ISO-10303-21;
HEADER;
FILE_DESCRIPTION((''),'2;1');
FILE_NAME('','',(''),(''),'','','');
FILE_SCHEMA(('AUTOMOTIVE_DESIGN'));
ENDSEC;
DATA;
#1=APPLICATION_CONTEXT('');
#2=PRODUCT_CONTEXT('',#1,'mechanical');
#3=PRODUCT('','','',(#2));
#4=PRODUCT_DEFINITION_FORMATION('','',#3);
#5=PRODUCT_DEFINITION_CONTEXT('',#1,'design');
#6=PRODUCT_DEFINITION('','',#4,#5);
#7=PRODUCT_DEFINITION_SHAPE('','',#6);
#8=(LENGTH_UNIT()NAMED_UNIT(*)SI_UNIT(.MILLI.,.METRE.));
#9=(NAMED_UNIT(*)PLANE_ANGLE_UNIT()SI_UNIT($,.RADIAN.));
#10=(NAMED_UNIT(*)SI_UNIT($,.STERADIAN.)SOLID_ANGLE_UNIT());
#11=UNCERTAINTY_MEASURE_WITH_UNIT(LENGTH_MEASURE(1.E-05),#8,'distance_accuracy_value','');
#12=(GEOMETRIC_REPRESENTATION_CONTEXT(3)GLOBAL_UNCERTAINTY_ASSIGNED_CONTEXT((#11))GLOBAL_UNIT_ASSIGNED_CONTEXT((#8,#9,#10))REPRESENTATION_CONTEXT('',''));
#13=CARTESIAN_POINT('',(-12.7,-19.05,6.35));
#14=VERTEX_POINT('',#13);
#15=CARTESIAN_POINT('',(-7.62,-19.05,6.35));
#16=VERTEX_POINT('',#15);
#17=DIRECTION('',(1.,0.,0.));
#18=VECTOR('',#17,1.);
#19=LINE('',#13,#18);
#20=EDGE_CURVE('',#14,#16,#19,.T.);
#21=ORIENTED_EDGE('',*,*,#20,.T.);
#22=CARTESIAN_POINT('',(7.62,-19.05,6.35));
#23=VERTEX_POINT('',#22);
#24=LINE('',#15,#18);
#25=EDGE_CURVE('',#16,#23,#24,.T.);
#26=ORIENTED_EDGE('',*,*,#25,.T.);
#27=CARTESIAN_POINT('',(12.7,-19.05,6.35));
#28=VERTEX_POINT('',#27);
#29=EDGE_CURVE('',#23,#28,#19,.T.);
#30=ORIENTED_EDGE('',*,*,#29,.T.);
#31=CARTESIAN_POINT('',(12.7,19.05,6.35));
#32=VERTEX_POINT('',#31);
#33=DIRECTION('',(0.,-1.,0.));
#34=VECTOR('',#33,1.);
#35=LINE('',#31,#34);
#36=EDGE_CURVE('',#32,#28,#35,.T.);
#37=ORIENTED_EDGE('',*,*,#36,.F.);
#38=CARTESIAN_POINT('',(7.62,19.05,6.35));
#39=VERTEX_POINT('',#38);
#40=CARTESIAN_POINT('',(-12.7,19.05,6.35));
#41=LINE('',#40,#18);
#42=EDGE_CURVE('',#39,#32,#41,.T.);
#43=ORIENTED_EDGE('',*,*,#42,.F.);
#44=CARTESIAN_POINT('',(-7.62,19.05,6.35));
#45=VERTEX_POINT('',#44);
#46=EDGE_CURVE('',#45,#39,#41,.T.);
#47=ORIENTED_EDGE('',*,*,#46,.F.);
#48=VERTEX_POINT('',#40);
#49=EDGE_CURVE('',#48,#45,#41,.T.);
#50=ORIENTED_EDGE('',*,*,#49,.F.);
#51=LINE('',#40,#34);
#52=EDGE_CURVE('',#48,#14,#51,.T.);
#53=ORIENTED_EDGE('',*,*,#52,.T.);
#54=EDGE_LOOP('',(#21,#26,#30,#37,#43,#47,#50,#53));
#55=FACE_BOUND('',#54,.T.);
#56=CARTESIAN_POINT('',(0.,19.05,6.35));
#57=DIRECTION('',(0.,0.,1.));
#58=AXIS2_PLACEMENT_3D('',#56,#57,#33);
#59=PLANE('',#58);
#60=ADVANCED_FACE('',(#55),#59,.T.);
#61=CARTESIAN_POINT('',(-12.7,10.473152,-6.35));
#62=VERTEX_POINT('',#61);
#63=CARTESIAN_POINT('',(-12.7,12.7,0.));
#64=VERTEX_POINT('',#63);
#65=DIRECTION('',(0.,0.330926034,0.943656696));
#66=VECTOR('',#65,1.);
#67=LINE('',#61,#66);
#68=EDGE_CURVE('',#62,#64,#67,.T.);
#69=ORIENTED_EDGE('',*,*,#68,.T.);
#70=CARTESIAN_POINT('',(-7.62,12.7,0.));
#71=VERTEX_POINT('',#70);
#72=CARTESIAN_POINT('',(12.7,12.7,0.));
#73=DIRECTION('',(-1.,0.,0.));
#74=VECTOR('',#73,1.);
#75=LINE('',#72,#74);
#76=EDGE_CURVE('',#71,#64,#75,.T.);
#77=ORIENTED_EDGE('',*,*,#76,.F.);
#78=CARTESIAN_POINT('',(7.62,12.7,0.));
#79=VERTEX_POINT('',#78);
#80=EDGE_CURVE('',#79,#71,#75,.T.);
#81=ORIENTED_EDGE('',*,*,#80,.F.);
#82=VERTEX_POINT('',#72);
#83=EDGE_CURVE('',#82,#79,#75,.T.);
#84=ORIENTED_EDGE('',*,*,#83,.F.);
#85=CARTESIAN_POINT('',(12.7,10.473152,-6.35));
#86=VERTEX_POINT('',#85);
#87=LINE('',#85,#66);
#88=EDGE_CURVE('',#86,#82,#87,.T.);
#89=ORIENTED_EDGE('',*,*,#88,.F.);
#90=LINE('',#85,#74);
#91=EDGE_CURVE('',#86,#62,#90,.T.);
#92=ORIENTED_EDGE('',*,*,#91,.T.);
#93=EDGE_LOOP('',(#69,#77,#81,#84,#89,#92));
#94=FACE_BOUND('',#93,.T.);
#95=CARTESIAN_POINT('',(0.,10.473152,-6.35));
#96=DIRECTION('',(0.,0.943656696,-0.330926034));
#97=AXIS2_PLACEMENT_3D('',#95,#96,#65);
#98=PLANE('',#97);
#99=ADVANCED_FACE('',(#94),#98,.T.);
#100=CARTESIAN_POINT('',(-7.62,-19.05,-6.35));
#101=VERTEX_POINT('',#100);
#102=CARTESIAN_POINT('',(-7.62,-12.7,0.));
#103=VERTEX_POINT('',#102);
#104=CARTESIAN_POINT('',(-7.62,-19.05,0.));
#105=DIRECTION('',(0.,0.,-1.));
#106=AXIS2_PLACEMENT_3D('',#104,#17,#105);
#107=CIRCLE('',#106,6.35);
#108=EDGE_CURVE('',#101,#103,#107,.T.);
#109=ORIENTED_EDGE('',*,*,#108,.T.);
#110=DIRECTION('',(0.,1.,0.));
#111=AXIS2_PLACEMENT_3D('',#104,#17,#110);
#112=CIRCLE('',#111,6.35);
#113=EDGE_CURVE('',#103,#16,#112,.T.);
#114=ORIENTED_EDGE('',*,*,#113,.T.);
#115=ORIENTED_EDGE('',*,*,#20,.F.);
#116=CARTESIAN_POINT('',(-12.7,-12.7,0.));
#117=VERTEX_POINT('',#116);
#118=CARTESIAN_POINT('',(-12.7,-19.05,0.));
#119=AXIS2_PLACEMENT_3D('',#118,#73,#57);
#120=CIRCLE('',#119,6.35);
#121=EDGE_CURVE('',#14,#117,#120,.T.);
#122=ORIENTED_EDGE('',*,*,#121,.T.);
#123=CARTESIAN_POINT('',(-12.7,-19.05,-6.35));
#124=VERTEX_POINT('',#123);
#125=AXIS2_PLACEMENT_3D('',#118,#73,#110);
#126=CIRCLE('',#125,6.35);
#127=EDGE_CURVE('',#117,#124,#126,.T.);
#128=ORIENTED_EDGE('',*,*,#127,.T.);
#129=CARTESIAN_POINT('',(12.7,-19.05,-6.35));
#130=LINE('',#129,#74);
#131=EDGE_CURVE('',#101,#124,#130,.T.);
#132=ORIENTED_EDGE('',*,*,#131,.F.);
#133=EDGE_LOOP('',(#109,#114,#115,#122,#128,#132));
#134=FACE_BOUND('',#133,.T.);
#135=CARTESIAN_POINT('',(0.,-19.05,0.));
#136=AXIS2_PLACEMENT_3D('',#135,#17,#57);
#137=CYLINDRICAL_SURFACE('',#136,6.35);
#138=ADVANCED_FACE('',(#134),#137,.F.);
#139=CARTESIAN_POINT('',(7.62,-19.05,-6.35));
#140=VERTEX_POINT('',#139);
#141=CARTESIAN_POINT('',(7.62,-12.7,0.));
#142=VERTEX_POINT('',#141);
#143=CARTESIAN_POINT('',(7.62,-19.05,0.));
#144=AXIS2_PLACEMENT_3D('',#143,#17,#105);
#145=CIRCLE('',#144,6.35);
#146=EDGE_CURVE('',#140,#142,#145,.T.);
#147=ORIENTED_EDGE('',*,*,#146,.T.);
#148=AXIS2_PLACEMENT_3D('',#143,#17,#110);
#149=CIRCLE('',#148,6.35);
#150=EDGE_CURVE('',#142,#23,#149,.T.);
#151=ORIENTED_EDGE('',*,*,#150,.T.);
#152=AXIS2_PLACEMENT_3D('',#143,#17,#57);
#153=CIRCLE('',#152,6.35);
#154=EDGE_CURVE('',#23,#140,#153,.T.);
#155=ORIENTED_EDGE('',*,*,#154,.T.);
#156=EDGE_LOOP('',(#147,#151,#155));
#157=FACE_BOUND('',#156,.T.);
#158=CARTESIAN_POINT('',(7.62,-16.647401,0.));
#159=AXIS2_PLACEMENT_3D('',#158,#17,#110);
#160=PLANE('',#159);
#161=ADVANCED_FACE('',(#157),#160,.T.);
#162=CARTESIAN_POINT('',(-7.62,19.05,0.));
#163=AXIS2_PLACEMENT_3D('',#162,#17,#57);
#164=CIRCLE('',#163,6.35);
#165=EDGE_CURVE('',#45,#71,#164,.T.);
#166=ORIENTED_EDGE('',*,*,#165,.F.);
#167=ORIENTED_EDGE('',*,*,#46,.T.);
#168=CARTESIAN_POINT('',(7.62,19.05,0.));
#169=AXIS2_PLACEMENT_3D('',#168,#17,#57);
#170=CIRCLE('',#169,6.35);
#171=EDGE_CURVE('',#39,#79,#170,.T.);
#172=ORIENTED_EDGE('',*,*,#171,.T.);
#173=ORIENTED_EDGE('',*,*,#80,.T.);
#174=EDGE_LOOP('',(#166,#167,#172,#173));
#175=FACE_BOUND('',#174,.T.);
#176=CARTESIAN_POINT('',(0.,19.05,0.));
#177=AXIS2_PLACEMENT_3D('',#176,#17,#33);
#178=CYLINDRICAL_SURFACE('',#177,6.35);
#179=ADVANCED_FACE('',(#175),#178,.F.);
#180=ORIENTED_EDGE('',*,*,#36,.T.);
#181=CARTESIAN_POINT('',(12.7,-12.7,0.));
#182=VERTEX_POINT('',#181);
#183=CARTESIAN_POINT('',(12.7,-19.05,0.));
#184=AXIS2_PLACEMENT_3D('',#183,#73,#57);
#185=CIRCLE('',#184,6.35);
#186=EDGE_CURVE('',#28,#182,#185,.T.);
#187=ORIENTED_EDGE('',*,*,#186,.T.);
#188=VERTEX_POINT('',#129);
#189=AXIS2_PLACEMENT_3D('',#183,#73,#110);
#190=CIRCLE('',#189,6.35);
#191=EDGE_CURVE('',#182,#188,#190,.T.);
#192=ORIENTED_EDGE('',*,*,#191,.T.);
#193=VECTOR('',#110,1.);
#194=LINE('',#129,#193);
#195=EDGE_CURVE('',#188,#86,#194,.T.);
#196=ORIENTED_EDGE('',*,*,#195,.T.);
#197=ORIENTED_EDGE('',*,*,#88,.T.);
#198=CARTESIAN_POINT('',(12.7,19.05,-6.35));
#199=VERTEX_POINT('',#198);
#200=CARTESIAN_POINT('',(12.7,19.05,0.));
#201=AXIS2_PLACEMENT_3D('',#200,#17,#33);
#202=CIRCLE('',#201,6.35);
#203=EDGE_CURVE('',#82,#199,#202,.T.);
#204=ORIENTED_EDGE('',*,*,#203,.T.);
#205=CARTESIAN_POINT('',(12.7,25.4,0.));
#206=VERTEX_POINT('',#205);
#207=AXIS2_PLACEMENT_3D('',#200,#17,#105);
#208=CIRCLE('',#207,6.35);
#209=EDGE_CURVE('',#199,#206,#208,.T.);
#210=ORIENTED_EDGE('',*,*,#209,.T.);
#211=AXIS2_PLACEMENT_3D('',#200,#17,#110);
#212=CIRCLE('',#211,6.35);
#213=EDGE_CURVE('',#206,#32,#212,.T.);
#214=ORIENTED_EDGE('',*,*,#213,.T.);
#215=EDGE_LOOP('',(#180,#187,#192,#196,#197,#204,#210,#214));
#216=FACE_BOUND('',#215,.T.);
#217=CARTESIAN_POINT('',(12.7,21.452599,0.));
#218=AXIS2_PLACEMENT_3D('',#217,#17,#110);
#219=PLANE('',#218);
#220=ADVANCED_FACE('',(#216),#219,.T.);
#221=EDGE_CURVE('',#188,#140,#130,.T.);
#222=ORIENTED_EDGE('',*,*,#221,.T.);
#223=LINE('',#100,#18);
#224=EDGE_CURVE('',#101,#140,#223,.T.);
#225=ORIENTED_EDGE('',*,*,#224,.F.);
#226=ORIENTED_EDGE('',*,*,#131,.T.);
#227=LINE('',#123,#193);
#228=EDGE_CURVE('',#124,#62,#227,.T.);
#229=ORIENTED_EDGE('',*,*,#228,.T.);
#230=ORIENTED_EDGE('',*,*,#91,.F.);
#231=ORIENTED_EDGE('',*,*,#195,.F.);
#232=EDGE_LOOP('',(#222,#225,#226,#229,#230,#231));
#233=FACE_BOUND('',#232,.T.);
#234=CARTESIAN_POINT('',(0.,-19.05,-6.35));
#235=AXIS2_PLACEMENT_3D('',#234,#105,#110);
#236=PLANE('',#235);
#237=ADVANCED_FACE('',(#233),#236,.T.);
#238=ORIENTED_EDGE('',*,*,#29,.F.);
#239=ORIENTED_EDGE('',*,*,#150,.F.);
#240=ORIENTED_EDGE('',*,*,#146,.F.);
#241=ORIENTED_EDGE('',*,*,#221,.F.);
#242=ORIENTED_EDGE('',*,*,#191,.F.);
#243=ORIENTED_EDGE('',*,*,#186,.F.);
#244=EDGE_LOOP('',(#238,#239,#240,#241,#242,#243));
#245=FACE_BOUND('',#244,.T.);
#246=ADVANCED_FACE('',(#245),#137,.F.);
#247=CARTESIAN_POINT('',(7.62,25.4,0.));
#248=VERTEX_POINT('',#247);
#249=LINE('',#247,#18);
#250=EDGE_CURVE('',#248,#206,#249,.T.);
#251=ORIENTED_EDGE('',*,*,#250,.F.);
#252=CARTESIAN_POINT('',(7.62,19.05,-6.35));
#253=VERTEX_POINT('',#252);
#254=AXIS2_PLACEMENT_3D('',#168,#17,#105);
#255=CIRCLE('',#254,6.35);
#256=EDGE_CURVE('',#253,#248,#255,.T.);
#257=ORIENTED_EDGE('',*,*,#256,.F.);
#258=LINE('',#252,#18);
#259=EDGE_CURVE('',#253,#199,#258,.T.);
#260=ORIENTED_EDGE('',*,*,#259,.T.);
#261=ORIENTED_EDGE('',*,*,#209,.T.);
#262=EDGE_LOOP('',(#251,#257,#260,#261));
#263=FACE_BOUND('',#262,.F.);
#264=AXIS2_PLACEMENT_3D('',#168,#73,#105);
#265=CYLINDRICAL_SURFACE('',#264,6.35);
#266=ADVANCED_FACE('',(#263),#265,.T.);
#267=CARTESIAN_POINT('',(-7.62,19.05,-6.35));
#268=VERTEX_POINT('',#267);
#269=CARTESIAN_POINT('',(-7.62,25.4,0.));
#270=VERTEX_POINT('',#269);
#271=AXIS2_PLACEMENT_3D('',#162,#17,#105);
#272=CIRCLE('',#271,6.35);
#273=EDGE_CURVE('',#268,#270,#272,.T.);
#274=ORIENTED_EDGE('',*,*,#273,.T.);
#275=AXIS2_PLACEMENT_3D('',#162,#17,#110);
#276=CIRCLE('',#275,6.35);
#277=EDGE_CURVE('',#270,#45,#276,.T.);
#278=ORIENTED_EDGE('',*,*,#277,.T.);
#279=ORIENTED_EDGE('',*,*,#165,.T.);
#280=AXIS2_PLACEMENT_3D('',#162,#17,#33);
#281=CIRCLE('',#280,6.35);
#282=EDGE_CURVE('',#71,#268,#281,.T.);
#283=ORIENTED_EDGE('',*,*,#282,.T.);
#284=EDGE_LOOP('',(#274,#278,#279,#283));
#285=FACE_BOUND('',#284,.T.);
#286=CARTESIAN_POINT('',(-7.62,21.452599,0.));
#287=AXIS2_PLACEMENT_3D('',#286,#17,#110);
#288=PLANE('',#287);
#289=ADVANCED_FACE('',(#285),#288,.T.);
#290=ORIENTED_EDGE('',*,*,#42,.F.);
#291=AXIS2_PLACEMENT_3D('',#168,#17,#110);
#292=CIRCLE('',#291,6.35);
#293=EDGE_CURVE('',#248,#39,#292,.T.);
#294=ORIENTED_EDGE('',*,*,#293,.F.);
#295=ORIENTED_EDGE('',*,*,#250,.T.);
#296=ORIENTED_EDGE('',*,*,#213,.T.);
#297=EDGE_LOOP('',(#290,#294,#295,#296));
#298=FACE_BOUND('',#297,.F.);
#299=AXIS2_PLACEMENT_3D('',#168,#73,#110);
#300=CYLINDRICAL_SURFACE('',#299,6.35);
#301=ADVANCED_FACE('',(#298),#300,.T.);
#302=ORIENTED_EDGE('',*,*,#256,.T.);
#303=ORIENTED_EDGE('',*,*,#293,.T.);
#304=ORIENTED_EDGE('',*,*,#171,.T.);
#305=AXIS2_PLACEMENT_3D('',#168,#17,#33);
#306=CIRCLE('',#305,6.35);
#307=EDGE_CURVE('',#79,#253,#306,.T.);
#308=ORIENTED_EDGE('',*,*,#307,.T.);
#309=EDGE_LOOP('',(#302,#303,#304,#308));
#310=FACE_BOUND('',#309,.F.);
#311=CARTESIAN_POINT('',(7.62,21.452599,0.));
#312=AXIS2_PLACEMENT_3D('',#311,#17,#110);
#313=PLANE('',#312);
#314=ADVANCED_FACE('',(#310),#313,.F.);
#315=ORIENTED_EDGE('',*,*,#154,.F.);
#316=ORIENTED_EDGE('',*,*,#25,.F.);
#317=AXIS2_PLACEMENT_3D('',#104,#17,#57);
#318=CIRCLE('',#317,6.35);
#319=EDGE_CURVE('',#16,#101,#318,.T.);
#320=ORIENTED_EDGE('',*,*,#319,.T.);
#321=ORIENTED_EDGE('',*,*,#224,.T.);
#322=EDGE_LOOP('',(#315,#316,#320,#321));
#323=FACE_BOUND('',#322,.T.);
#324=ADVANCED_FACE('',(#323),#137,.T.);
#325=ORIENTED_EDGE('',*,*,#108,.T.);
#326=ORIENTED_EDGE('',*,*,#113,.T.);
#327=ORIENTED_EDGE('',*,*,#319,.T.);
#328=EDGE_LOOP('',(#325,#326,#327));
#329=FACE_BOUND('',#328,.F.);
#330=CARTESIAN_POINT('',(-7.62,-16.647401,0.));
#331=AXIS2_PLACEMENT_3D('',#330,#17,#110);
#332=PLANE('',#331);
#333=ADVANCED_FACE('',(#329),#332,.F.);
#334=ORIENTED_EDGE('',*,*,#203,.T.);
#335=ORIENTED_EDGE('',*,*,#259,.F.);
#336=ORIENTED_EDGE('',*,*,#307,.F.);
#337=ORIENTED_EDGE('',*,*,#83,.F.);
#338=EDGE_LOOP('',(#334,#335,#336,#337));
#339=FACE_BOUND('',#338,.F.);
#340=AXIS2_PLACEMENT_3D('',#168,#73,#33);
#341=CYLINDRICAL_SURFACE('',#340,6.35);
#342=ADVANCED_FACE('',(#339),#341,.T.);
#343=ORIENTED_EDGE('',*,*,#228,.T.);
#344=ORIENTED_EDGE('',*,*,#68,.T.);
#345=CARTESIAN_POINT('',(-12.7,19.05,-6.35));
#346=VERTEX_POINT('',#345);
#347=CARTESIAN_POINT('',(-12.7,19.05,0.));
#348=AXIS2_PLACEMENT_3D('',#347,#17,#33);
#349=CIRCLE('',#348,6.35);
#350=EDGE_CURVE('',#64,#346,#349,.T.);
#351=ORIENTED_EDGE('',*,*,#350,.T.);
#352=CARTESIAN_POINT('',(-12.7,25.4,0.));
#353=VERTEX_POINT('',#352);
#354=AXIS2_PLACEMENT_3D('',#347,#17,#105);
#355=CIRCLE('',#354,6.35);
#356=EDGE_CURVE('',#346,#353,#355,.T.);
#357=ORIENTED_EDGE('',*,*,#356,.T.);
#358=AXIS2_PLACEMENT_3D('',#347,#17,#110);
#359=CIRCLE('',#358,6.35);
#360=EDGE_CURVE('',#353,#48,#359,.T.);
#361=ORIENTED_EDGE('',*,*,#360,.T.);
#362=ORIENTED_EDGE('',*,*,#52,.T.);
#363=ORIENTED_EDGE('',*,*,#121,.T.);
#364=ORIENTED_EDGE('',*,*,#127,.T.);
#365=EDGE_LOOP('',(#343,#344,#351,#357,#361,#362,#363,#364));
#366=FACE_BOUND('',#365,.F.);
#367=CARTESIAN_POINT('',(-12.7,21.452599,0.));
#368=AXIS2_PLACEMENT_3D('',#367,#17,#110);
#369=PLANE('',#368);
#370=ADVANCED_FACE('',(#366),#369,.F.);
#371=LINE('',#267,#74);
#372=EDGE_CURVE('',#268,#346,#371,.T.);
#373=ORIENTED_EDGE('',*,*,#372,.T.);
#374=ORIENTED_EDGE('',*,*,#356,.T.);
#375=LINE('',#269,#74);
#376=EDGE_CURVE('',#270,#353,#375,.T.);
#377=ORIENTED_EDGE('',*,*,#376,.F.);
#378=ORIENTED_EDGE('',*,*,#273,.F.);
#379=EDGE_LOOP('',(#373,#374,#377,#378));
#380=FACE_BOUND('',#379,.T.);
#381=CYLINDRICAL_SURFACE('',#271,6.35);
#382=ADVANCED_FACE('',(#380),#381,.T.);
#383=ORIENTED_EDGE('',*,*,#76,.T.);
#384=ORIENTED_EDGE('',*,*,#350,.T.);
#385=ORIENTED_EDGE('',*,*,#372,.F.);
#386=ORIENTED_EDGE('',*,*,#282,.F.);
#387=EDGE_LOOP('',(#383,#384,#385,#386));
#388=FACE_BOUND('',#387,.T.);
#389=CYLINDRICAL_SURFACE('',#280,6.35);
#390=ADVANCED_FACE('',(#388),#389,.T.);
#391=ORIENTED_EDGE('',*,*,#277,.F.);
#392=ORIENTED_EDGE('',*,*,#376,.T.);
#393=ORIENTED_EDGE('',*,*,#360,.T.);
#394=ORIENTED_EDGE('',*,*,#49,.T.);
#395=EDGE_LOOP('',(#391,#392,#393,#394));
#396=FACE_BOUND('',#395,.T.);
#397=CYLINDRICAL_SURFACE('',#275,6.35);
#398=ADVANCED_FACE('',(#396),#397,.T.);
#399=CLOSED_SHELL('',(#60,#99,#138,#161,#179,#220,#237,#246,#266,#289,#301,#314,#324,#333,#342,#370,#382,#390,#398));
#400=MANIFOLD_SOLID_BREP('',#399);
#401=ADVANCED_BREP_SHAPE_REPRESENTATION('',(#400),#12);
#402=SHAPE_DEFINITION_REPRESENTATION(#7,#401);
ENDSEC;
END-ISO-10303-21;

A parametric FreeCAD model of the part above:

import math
import FreeCAD as App
import Part
import Sketcher

V = App.Vector
Q = App.Units.Quantity

doc = App.newDocument("Part")
body = doc.addObject("PartDesign::Body", "Body")

# Sketch on YZ plane
sketch1 = body.newObject("Sketcher::SketchObject", "Sketch")
sketch1.AttachmentSupport = (doc.getObject("YZ_Plane"), [""])
sketch1.MapMode = "FlatFace"
sketch1.addGeometry([
    Part.ArcOfCircle(Part.Circle(V(19, 0, 0), V(0, 0, 1), 6), math.radians(90), math.radians(180)),  # 0
    Part.LineSegment(V(19, 6, 0), V(-19, 6, 0)),  # 1
    Part.ArcOfCircle(Part.Circle(V(-19, 0, 0), V(0, 0, 1), 6), math.radians(0), math.radians(90)),  # 2
    Part.ArcOfCircle(Part.Circle(V(-19, 0, 0), V(0, 0, 1), 6), math.radians(-90), math.radians(0)),  # 3
    Part.LineSegment(V(-19, -6, 0), V(10, -6, 0)),  # 4
    Part.LineSegment(V(10, -6, 0), V(13, 0, 0)),  # 5
], False)
sketch1.addConstraint([
    Sketcher.Constraint("Tangent", 0, 1, 1, 1),
    Sketcher.Constraint("Tangent", 1, 2, 2, 2),
    Sketcher.Constraint("Tangent", 2, 1, 3, 2),
    Sketcher.Constraint("Tangent", 3, 1, 4, 1),
    Sketcher.Constraint("Coincident", 4, 2, 5, 1),
    Sketcher.Constraint("Coincident", 5, 2, 0, 2),
    Sketcher.Constraint("Horizontal", 1),
    Sketcher.Constraint("Horizontal", 4),
    Sketcher.Constraint("Equal", 0, 2),
    Sketcher.Constraint("Equal", 2, 3),
    Sketcher.Constraint("Symmetric", 0, 3, 2, 3, -1, 1),
    Sketcher.Constraint("PointOnObject", 2, 1, -1),
    Sketcher.Constraint("PointOnObject", 5, 2, -1),
    Sketcher.Constraint("Radius", 0, Q("0.25 in")),
    Sketcher.Constraint("DistanceX", 1, 2, 1, 1, Q("1.5 in")),
    Sketcher.Constraint("DistanceX", 4, 1, 4, 2, 29.523152),
])
pad1 = body.newObject("PartDesign::Pad", "Pad")
pad1.Profile = sketch1
pad1.Length = Q("1 in")
pad1.Midplane = True

# Sketch on YZ plane
sketch2 = body.newObject("Sketcher::SketchObject", "Sketch001")
sketch2.AttachmentSupport = (doc.getObject("YZ_Plane"), [""])
sketch2.MapMode = "FlatFace"
sketch2.AttachmentOffset = App.Placement(V(0, 0, 0.3 * 25.4), App.Rotation())
sketch2.addGeometry([
    Part.ArcOfCircle(Part.Circle(V(19, 0, 0), V(0, 0, 1), 6), math.radians(0), math.radians(90)),
    Part.ArcOfCircle(Part.Circle(V(19, 0, 0), V(0, 0, 1), 6), math.radians(90), math.radians(180)),
    Part.ArcOfCircle(Part.Circle(V(19, 0, 0), V(0, 0, 1), 6), math.radians(180), math.radians(270)),
    Part.ArcOfCircle(Part.Circle(V(19, 0, 0), V(0, 0, 1), 6), math.radians(-90), math.radians(0)),
], False)
sketch2.addConstraint([
    Sketcher.Constraint("Tangent", 0, 2, 1, 1),
    Sketcher.Constraint("Tangent", 1, 2, 2, 1),
    Sketcher.Constraint("Tangent", 2, 2, 3, 1),
    Sketcher.Constraint("Tangent", 3, 2, 0, 1),
    Sketcher.Constraint("Equal", 0, 1),
    Sketcher.Constraint("Symmetric", 0, 2, 2, 2, -1),
    Sketcher.Constraint("PointOnObject", 1, 2, -1),
    Sketcher.Constraint("PointOnObject", 3, 2, -1),
    Sketcher.Constraint("Vertical", 3, 3, 0, 2),
    Sketcher.Constraint("Radius", 0, Q("0.25 in")),
    Sketcher.Constraint("DistanceX", -1, 1, 3, 2, Q("1 in")),
])
pad2 = body.newObject("PartDesign::Pad", "Pad001")
pad2.Profile = sketch2
pad2.Length = Q("0.2 in")

# Sketch on YZ plane
sketch3 = body.newObject("Sketcher::SketchObject", "Sketch002")
sketch3.AttachmentSupport = (doc.getObject("YZ_Plane"), [""])
sketch3.MapMode = "FlatFace"
sketch3.AttachmentOffset = App.Placement(V(0, 0, -0.3 * 25.4), App.Rotation())
sketch3.addGeometry([
    Part.ArcOfCircle(Part.Circle(V(19, 0, 0), V(0, 0, 1), 6), math.radians(0), math.radians(90)),
    Part.ArcOfCircle(Part.Circle(V(19, 0, 0), V(0, 0, 1), 6), math.radians(90), math.radians(180)),
    Part.ArcOfCircle(Part.Circle(V(19, 0, 0), V(0, 0, 1), 6), math.radians(180), math.radians(270)),
    Part.ArcOfCircle(Part.Circle(V(19, 0, 0), V(0, 0, 1), 6), math.radians(-90), math.radians(0)),
], False)
sketch3.addConstraint([
    Sketcher.Constraint("Tangent", 0, 2, 1, 1),
    Sketcher.Constraint("Tangent", 1, 2, 2, 1),
    Sketcher.Constraint("Tangent", 2, 2, 3, 1),
    Sketcher.Constraint("Tangent", 3, 2, 0, 1),
    Sketcher.Constraint("Equal", 0, 1),
    Sketcher.Constraint("Symmetric", 0, 2, 2, 2, -1),
    Sketcher.Constraint("PointOnObject", 1, 2, -1),
    Sketcher.Constraint("PointOnObject", 3, 2, -1),
    Sketcher.Constraint("Vertical", 3, 3, 0, 2),
    Sketcher.Constraint("Radius", 0, Q("0.25 in")),
    Sketcher.Constraint("DistanceX", -1, 1, 3, 2, Q("1 in")),
])
pad3 = body.newObject("PartDesign::Pad", "Pad002")
pad3.Profile = sketch3
pad3.Length = Q("0.2 in")
pad3.Reversed = True

# Sketch on YZ plane
sketch4 = body.newObject("Sketcher::SketchObject", "Sketch003")
sketch4.AttachmentSupport = (doc.getObject("YZ_Plane"), [""])
sketch4.MapMode = "FlatFace"
sketch4.addGeometry([
    Part.ArcOfCircle(Part.Circle(V(-19, 0, 0), V(0, 0, 1), 6), math.radians(0), math.radians(90)),
    Part.ArcOfCircle(Part.Circle(V(-19, 0, 0), V(0, 0, 1), 6), math.radians(90), math.radians(270)),
    Part.ArcOfCircle(Part.Circle(V(-19, 0, 0), V(0, 0, 1), 6), math.radians(-90), math.radians(0)),
], False)
sketch4.addConstraint([
    Sketcher.Constraint("Tangent", 0, 2, 1, 1),
    Sketcher.Constraint("Tangent", 1, 2, 2, 1),
    Sketcher.Constraint("Tangent", 2, 2, 0, 1),
    Sketcher.Constraint("Symmetric", 0, 2, 1, 2, -1),
    Sketcher.Constraint("PointOnObject", 2, 2, -1),
    Sketcher.Constraint("Vertical", 2, 3, 0, 2),
    Sketcher.Constraint("Radius", 0, Q("0.25 in")),
    Sketcher.Constraint("DistanceX", 2, 2, -1, 1, Q("0.5 in")),
])
pad4 = body.newObject("PartDesign::Pad", "Pad003")
pad4.Profile = sketch4
pad4.Length = Q("0.6 in")
pad4.Midplane = True

doc.recompute()
